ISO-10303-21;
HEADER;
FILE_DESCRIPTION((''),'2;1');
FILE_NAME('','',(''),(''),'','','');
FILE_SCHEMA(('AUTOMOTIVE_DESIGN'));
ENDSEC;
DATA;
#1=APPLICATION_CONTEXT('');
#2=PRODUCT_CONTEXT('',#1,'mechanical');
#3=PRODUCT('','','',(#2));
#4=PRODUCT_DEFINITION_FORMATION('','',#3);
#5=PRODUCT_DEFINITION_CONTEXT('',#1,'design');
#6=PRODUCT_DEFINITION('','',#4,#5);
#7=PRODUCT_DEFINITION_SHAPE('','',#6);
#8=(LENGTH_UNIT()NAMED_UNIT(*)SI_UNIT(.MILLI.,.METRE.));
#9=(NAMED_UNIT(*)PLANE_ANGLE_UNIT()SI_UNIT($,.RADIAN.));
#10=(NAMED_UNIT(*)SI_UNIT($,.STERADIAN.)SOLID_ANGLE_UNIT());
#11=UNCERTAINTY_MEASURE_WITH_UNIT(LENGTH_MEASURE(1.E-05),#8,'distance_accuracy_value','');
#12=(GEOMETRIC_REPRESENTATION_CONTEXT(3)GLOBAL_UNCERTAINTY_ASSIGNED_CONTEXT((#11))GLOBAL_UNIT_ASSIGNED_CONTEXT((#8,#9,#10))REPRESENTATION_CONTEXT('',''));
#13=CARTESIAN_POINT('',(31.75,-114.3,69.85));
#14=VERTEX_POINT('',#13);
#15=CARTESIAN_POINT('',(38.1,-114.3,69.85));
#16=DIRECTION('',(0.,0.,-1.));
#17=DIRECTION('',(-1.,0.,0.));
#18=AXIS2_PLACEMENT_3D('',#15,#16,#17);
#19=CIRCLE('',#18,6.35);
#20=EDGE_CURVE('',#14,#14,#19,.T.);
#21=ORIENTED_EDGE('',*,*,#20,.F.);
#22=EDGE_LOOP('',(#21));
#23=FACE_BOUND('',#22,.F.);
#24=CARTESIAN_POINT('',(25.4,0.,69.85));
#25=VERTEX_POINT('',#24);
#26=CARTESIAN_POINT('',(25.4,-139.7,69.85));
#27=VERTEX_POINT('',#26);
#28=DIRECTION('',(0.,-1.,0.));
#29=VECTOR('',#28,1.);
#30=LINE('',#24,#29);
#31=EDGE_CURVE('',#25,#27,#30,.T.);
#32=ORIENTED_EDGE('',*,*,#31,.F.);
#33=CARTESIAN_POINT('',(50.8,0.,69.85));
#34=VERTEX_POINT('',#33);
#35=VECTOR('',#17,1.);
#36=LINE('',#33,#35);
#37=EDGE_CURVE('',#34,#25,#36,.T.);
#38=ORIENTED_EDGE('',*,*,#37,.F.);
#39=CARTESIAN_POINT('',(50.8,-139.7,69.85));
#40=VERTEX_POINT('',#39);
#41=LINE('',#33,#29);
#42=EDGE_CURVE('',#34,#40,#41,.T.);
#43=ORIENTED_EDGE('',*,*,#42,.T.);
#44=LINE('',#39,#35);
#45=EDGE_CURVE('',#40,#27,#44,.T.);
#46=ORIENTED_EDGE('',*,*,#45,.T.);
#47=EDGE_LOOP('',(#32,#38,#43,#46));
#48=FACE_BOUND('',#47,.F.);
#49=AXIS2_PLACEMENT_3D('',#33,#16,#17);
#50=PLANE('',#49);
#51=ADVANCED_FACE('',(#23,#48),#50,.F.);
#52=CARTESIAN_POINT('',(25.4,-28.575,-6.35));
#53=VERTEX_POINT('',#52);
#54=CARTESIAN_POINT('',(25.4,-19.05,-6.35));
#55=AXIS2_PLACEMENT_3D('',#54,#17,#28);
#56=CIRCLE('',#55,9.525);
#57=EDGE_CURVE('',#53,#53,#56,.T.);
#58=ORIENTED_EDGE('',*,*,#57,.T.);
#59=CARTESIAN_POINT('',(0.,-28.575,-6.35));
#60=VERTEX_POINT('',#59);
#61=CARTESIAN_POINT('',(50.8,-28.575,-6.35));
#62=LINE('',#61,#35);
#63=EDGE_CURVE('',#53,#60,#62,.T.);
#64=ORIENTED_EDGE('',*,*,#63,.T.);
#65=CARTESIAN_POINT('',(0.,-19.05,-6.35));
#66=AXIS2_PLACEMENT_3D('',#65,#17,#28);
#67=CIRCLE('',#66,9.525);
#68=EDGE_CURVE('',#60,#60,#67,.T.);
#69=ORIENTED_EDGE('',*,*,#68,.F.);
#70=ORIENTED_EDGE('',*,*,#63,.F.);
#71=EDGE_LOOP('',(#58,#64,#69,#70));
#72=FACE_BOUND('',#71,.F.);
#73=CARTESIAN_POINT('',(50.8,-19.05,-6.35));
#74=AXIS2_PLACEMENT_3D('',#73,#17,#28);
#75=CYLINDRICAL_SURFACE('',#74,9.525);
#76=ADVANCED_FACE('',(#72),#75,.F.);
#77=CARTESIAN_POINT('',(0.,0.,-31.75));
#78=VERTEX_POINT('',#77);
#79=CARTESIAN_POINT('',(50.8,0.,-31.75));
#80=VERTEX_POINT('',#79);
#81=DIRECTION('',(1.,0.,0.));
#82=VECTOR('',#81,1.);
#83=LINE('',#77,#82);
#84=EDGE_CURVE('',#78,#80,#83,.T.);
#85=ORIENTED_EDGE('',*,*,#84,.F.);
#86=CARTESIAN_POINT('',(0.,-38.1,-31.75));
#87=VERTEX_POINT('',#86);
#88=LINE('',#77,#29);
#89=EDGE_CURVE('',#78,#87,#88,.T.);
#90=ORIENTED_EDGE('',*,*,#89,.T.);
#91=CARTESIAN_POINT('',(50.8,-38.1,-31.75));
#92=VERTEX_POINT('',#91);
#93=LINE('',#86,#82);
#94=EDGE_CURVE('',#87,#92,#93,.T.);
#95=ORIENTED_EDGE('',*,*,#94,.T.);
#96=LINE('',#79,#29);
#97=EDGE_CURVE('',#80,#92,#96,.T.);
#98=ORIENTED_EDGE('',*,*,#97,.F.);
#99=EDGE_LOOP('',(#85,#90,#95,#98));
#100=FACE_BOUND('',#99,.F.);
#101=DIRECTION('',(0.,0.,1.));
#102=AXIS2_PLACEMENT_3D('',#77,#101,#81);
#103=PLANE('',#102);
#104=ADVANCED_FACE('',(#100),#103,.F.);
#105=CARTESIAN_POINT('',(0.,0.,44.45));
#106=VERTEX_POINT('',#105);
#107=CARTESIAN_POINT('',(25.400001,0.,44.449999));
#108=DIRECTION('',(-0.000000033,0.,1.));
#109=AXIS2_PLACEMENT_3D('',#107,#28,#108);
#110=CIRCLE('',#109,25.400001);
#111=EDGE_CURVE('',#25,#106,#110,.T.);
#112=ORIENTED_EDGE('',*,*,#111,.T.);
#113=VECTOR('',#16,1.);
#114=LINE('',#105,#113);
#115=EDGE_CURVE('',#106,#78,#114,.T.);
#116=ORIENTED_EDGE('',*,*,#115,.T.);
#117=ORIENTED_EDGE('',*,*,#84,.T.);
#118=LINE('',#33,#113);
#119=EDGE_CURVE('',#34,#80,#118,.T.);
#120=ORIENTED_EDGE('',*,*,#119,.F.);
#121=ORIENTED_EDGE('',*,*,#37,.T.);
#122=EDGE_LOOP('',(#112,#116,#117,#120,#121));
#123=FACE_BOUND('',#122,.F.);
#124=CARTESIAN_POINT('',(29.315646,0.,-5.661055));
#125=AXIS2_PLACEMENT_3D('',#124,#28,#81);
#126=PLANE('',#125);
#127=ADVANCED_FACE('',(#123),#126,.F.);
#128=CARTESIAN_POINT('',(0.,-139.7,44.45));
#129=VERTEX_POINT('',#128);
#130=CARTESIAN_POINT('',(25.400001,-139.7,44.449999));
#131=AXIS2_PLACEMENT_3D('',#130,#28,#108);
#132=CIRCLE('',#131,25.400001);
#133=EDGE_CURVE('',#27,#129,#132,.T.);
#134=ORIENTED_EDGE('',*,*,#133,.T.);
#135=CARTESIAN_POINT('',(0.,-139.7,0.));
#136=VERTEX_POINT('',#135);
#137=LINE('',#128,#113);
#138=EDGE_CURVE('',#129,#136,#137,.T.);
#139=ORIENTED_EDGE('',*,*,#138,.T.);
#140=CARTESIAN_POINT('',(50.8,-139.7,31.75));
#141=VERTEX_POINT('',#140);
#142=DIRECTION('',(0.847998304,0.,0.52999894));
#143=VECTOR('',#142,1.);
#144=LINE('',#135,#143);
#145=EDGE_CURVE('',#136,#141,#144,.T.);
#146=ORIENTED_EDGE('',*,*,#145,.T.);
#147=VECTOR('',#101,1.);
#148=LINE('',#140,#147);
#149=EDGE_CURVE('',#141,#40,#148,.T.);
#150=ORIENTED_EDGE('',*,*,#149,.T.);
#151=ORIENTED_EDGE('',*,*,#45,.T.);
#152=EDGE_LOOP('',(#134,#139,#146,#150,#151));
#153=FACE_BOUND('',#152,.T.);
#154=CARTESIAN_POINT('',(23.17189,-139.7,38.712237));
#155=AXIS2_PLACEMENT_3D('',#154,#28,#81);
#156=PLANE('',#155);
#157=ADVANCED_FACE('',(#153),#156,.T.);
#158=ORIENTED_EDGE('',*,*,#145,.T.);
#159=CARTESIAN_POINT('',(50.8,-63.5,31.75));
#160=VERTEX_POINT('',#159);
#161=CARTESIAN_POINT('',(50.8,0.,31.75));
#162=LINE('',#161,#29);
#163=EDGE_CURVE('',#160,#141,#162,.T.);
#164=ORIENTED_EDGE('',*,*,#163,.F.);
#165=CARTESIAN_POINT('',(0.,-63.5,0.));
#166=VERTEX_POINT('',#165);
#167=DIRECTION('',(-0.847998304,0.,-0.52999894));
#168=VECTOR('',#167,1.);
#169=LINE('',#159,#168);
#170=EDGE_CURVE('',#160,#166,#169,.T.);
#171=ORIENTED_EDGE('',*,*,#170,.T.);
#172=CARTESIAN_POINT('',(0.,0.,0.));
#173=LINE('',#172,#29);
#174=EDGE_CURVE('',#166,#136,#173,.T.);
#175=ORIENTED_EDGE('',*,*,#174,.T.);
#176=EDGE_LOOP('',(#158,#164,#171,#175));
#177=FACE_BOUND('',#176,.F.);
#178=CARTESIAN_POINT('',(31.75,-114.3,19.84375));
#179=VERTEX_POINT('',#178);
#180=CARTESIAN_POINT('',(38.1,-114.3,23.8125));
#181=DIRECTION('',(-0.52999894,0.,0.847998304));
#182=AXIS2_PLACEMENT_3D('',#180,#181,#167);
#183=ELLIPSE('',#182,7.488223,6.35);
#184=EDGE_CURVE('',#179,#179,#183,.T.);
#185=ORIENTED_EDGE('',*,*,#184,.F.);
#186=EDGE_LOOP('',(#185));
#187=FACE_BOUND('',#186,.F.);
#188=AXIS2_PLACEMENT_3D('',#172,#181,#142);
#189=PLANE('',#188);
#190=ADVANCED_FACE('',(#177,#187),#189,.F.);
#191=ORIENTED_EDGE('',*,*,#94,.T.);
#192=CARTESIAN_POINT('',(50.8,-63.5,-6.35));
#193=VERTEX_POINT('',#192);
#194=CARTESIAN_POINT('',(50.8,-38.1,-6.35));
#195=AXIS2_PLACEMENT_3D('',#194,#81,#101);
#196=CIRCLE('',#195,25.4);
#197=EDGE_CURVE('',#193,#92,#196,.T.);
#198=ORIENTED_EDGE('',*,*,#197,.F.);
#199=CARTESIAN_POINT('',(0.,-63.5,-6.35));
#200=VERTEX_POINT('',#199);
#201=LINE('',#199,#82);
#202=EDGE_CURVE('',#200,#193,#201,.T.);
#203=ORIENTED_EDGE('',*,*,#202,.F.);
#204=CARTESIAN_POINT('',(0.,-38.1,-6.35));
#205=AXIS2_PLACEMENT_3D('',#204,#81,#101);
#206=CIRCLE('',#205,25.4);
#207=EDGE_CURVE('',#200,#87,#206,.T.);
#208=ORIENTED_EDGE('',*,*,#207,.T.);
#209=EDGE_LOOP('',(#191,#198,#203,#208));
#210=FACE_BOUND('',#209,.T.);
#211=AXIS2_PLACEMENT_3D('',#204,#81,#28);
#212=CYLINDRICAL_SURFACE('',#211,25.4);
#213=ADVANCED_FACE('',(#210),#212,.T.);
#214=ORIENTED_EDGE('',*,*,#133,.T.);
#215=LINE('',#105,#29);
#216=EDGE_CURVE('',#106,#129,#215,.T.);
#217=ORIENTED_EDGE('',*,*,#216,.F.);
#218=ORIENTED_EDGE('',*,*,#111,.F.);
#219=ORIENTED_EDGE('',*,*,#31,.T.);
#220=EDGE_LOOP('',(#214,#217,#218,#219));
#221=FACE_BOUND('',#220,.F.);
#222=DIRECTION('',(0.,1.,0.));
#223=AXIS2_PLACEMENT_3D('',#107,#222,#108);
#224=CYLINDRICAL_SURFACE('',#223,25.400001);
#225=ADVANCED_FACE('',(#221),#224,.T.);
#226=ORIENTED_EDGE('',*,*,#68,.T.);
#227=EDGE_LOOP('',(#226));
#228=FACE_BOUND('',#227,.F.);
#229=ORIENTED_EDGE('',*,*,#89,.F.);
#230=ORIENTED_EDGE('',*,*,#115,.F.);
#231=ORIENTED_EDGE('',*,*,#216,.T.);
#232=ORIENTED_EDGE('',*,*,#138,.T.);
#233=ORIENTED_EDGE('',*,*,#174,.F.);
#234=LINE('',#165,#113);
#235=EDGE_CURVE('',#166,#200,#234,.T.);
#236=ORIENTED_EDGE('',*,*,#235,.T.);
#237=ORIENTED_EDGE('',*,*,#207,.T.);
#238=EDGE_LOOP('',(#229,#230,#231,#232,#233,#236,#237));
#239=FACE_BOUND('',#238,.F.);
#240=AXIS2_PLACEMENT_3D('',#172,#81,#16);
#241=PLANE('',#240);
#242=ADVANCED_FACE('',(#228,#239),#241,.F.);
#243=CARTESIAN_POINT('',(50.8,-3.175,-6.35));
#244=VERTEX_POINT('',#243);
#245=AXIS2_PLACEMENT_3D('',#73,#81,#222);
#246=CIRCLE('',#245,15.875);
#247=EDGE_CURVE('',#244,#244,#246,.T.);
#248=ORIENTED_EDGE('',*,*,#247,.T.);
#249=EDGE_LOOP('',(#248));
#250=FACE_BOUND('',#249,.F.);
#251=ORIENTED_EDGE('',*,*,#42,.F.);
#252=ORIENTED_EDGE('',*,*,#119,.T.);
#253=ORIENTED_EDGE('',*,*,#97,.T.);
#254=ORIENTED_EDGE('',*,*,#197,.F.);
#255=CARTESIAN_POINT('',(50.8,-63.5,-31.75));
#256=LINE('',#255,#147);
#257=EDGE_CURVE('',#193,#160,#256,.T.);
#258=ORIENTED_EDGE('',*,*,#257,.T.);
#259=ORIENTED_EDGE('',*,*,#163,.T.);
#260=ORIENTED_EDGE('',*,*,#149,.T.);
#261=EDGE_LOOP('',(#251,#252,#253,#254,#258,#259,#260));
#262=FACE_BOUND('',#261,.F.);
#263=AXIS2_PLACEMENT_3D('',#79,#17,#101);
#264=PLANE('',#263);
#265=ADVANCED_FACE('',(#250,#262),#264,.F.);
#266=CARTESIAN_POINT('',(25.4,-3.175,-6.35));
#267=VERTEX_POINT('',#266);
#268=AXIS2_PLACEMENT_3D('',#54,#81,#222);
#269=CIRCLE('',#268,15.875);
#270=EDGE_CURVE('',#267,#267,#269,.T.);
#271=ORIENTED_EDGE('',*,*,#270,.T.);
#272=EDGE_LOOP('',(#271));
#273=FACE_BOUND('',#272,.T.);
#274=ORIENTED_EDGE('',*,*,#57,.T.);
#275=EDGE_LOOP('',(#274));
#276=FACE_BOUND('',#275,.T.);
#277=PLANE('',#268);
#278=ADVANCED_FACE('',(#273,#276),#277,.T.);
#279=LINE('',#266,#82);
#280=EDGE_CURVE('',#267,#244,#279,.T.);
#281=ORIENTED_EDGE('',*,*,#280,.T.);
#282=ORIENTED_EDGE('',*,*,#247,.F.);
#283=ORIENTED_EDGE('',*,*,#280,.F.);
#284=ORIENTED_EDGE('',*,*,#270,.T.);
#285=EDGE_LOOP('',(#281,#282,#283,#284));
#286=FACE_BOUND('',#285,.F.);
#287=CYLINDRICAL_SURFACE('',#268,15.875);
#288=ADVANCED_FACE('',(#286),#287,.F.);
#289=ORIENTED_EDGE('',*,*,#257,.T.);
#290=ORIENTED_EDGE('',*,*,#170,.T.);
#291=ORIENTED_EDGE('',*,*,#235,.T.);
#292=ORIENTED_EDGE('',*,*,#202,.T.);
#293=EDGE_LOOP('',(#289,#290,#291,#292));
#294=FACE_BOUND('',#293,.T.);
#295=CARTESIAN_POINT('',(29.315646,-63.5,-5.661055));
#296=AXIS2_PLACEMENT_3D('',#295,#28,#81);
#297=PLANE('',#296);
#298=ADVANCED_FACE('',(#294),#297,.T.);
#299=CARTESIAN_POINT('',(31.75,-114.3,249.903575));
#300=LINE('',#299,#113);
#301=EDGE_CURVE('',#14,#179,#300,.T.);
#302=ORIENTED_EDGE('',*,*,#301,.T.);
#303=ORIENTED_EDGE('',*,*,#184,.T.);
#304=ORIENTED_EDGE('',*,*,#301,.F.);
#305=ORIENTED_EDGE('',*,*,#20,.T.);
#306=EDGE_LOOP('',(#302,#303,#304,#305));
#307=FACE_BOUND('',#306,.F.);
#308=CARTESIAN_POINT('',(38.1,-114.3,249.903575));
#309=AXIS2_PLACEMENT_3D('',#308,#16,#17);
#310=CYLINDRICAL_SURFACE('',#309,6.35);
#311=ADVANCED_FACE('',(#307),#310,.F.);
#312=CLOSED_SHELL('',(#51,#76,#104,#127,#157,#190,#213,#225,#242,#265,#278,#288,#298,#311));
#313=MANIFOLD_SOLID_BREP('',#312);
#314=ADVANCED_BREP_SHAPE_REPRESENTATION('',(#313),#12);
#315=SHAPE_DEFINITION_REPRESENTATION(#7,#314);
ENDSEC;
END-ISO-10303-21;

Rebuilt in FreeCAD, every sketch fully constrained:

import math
import FreeCAD as App
import Part
import Sketcher
from FreeCAD import Vector
Q = App.Units.Quantity


def edges_at(feature, points):
    """Names of the edges that pass closest to the given points."""
    edges = feature.Shape.Edges
    near = lambda p: min(range(len(edges)), key=lambda i: edges[i].distToShape(Part.Vertex(*p))[0])
    return sorted({f"Edge{near(p) + 1}" for p in points})

doc = App.newDocument("Part")
body = doc.addObject("PartDesign::Body", "Body")

sketch1 = body.newObject("Sketcher::SketchObject", "Sketch")
sketch1.AttachmentSupport = (doc.getObject("XZ_Plane"), [""])
sketch1.MapMode = "FlatFace"
sketch1.addGeometry([
    Part.LineSegment(Vector(0, 44, 0), Vector(0, 0, 0)),
    Part.LineSegment(Vector(0, 0, 0), Vector(51, 32, 0)),
    Part.LineSegment(Vector(51, 32, 0), Vector(51, 70, 0)),
    Part.LineSegment(Vector(51, 70, 0), Vector(25, 70, 0)),
    Part.ArcOfCircle(Part.Circle(Vector(25, 44, 0), Vector(0, 0, 1), 25), math.radians(90), math.radians(180)),
], False)
sketch1.addConstraint([
    Sketcher.Constraint("Coincident", 0, 2, 1, 1),
    Sketcher.Constraint("Coincident", 1, 2, 2, 1),
    Sketcher.Constraint("Coincident", 2, 2, 3, 1),
    Sketcher.Constraint("Tangent", 3, 2, 4, 1),
    Sketcher.Constraint("Tangent", 4, 2, 0, 1),
    Sketcher.Constraint("Vertical", 0),
    Sketcher.Constraint("Vertical", 2),
    Sketcher.Constraint("Horizontal", 3),
    Sketcher.Constraint("Coincident", 0, 2, -1, 1),
    Sketcher.Constraint("Radius", 4, Q("1 in")),
    Sketcher.Constraint("DistanceX", 3, 2, 3, 1, Q("1 in")),
    Sketcher.Constraint("DistanceY", 2, 1, 2, 2, Q("1.5 in")),
    Sketcher.Constraint("DistanceY", 0, 2, 0, 1, Q("1.75 in")),
])
pad1 = body.newObject("PartDesign::Pad", "Pad")
pad1.Profile = sketch1
pad1.Length = Q("5.5 in")

sketch2 = body.newObject("Sketcher::SketchObject", "Sketch001")
sketch2.AttachmentSupport = (doc.getObject("XZ_Plane"), [""])
sketch2.MapMode = "FlatFace"
sketch2.addGeometry([
    Part.LineSegment(Vector(51, 32, 0), Vector(0, 0, 0)),
    Part.LineSegment(Vector(0, 0, 0), Vector(0, -32, 0)),
    Part.LineSegment(Vector(0, -32, 0), Vector(51, -32, 0)),
    Part.LineSegment(Vector(51, -32, 0), Vector(51, 32, 0)),
], False)
sketch2.addConstraint([
    Sketcher.Constraint("Coincident", 0, 2, 1, 1),
    Sketcher.Constraint("Coincident", 1, 2, 2, 1),
    Sketcher.Constraint("Coincident", 2, 2, 3, 1),
    Sketcher.Constraint("Coincident", 3, 2, 0, 1),
    Sketcher.Constraint("Vertical", 1),
    Sketcher.Constraint("Horizontal", 2),
    Sketcher.Constraint("Vertical", 3),
    Sketcher.Constraint("Coincident", 0, 2, -1, 1),
    Sketcher.Constraint("DistanceX", 2, 1, 2, 2, Q("2 in")),
    Sketcher.Constraint("DistanceY", 3, 1, 3, 2, Q("2.5 in")),
    Sketcher.Constraint("DistanceY", 1, 2, 1, 1, Q("1.25 in")),
])
pad2 = body.newObject("PartDesign::Pad", "Pad001")
pad2.Profile = sketch2
pad2.Length = Q("2.5 in")
doc.recompute()

fillet = body.newObject("PartDesign::Fillet", "Fillet")
fillet.Base = (pad2, edges_at(pad2, [(25.4, -63.5, -31.75)]))
fillet.Radius = Q("1 in")

sketch3 = body.newObject("Sketcher::SketchObject", "Sketch002")
sketch3.AttachmentSupport = (doc.getObject("YZ_Plane"), [""])
sketch3.MapMode = "FlatFace"
sketch3.AttachmentOffset = App.Placement(Vector(0, 0, 2 * 25.4), App.Rotation())
sketch3.addGeometry(Part.Circle(Vector(-19, -6, 0), Vector(0, 0, 1), 10), False)
sketch3.addConstraint([
    Sketcher.Constraint("Diameter", 0, Q("0.75 in")),
    Sketcher.Constraint("DistanceX", 0, 3, -1, 1, Q("0.75 in")),
    Sketcher.Constraint("DistanceY", 0, 3, -1, 1, Q("0.25 in")),
])
doc.recompute()
hole = body.newObject("PartDesign::Hole", "Hole")
hole.Profile = sketch3
hole.ThreadType = "None"
hole.Diameter = Q("0.75 in")
hole.DepthType = "ThroughAll"
hole.HoleCutType = "Counterbore"
hole.HoleCutDiameter = Q("1.25 in")
hole.HoleCutDepth = Q("1 in")

sketch4 = body.newObject("Sketcher::SketchObject", "Sketch003")
sketch4.AttachmentSupport = (doc.getObject("XY_Plane"), [""])
sketch4.MapMode = "FlatFace"
sketch4.AttachmentOffset = App.Placement(Vector(0, 0, 2.75 * 25.4), App.Rotation())
sketch4.addGeometry(Part.Circle(Vector(38, -114, 0), Vector(0, 0, 1), 6), False)
sketch4.addConstraint([
    Sketcher.Constraint("Diameter", 0, Q("0.5 in")),
    Sketcher.Constraint("DistanceX", -1, 1, 0, 3, Q("1.5 in")),
    Sketcher.Constraint("DistanceY", 0, 3, -1, 1, Q("4.5 in")),
])
doc.recompute()
hole2 = body.newObject("PartDesign::Hole", "Hole001")
hole2.Profile = sketch4
hole2.ThreadType = "None"
hole2.Diameter = Q("0.5 in")
hole2.DepthType = "ThroughAll"

doc.recompute()
